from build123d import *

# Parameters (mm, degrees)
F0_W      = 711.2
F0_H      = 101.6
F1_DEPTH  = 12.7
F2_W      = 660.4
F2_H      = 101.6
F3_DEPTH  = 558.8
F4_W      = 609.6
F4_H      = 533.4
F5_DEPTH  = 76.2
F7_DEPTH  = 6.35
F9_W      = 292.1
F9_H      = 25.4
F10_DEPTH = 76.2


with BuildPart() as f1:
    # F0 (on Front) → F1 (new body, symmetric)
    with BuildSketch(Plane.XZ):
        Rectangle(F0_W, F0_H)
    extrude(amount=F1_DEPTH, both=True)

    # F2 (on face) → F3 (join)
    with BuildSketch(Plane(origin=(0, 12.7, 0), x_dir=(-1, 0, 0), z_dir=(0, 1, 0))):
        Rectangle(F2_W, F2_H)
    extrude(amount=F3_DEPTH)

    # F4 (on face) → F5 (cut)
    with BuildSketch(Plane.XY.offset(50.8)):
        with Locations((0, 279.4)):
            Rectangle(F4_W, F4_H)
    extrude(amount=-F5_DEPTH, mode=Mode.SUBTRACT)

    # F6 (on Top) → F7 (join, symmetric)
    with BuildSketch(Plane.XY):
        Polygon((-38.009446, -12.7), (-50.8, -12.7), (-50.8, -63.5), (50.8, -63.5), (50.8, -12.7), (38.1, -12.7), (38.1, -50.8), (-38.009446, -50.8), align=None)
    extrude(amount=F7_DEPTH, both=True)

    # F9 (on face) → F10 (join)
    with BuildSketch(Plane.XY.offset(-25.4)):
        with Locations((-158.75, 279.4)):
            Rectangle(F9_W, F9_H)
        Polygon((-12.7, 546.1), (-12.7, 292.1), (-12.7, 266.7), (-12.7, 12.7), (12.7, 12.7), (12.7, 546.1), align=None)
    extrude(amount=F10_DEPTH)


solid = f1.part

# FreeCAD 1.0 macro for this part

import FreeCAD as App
import Part
import Sketcher

V = App.Vector
Q = App.Units.Quantity

doc = App.newDocument("Part")
body = doc.addObject("PartDesign::Body", "Body")

# Sketch on XZ plane
sketch1 = body.newObject("Sketcher::SketchObject", "Sketch")
sketch1.AttachmentSupport = (doc.getObject("XZ_Plane"), [""])
sketch1.MapMode = "FlatFace"
sketch1.addGeometry([
    Part.LineSegment(V(-356, 51, 0), V(-356, -51, 0)),
    Part.LineSegment(V(-356, -51, 0), V(356, -51, 0)),
    Part.LineSegment(V(356, -51, 0), V(356, 51, 0)),
    Part.LineSegment(V(356, 51, 0), V(-356, 51, 0)),
], False)
sketch1.addConstraint([
    Sketcher.Constraint("Coincident", 0, 2, 1, 1),
    Sketcher.Constraint("Coincident", 1, 2, 2, 1),
    Sketcher.Constraint("Coincident", 2, 2, 3, 1),
    Sketcher.Constraint("Coincident", 3, 2, 0, 1),
    Sketcher.Constraint("Vertical", 0),
    Sketcher.Constraint("Horizontal", 1),
    Sketcher.Constraint("Vertical", 2),
    Sketcher.Constraint("Horizontal", 3),
    Sketcher.Constraint("Symmetric", 0, 2, 2, 2, -1, 1),
    Sketcher.Constraint("DistanceX", 1, 1, 1, 2, Q("28 in")),
    Sketcher.Constraint("DistanceY", 0, 2, 0, 1, Q("4 in")),
])
pad1 = body.newObject("PartDesign::Pad", "Pad")
pad1.Profile = sketch1
pad1.Length = Q("1 in")
pad1.Midplane = True

# Sketch on XZ plane
sketch2 = body.newObject("Sketcher::SketchObject", "Sketch001")
sketch2.AttachmentSupport = (doc.getObject("XZ_Plane"), [""])
sketch2.MapMode = "FlatFace"
sketch2.AttachmentOffset = App.Placement(V(0, 0, -0.5 * 25.4), App.Rotation())
sketch2.addGeometry([
    Part.LineSegment(V(330, 51, 0), V(330, -51, 0)),
    Part.LineSegment(V(330, -51, 0), V(-330, -51, 0)),
    Part.LineSegment(V(-330, -51, 0), V(-330, 51, 0)),
    Part.LineSegment(V(-330, 51, 0), V(330, 51, 0)),
], False)
sketch2.addConstraint([
    Sketcher.Constraint("Coincident", 0, 2, 1, 1),
    Sketcher.Constraint("Coincident", 1, 2, 2, 1),
    Sketcher.Constraint("Coincident", 2, 2, 3, 1),
    Sketcher.Constraint("Coincident", 3, 2, 0, 1),
    Sketcher.Constraint("Vertical", 0),
    Sketcher.Constraint("Horizontal", 1),
    Sketcher.Constraint("Vertical", 2),
    Sketcher.Constraint("Horizontal", 3),
    Sketcher.Constraint("Symmetric", 0, 2, 2, 2, -1, 1),
    Sketcher.Constraint("DistanceX", 1, 2, 1, 1, Q("26 in")),
    Sketcher.Constraint("DistanceY", 0, 2, 0, 1, Q("4 in")),
])
pad2 = body.newObject("PartDesign::Pad", "Pad001")
pad2.Profile = sketch2
pad2.Length = Q("22 in")
pad2.Reversed = True

# Sketch on XY plane
sketch3 = body.newObject("Sketcher::SketchObject", "Sketch002")
sketch3.AttachmentSupport = (doc.getObject("XY_Plane"), [""])
sketch3.MapMode = "FlatFace"
sketch3.AttachmentOffset = App.Placement(V(0, 0, 2 * 25.4), App.Rotation())
sketch3.addGeometry([
    Part.LineSegment(V(-305, 546, 0), V(-305, 13, 0)),
    Part.LineSegment(V(-305, 13, 0), V(305, 13, 0)),
    Part.LineSegment(V(305, 13, 0), V(305, 546, 0)),
    Part.LineSegment(V(305, 546, 0), V(-305, 546, 0)),
], False)
sketch3.addConstraint([
    Sketcher.Constraint("Coincident", 0, 2, 1, 1),
    Sketcher.Constraint("Coincident", 1, 2, 2, 1),
    Sketcher.Constraint("Coincident", 2, 2, 3, 1),
    Sketcher.Constraint("Coincident", 3, 2, 0, 1),
    Sketcher.Constraint("Vertical", 0),
    Sketcher.Constraint("Horizontal", 1),
    Sketcher.Constraint("Vertical", 2),
    Sketcher.Constraint("Horizontal", 3),
    Sketcher.Constraint("DistanceX", 1, 1, 1, 2, Q("24 in")),
    Sketcher.Constraint("DistanceY", 0, 2, 0, 1, Q("21 in")),
    Sketcher.Constraint("DistanceX", 0, 2, -1, 1, Q("12 in")),
    Sketcher.Constraint("DistanceY", -1, 1, 0, 2, Q("0.5 in")),
])
pocket1 = body.newObject("PartDesign::Pocket", "Pocket")
pocket1.Profile = sketch3
pocket1.Length = Q("3 in")

# Sketch on XY plane
sketch4 = body.newObject("Sketcher::SketchObject", "Sketch003")
sketch4.AttachmentSupport = (doc.getObject("XY_Plane"), [""])
sketch4.MapMode = "FlatFace"
sketch4.addGeometry([
    Part.LineSegment(V(-38, -13, 0), V(-51, -13, 0)),  # 0
    Part.LineSegment(V(-51, -13, 0), V(-51, -64, 0)),  # 1
    Part.LineSegment(V(-51, -64, 0), V(51, -64, 0)),  # 2
    Part.LineSegment(V(51, -64, 0), V(51, -13, 0)),  # 3
    Part.LineSegment(V(51, -13, 0), V(38, -13, 0)),  # 4
    Part.LineSegment(V(38, -13, 0), V(38, -51, 0)),  # 5
    Part.LineSegment(V(38, -51, 0), V(-38, -51, 0)),  # 6
    Part.LineSegment(V(-38, -51, 0), V(-38, -13, 0)),  # 7
], False)
sketch4.addConstraint([
    Sketcher.Constraint("Coincident", 0, 2, 1, 1),
    Sketcher.Constraint("Coincident", 1, 2, 2, 1),
    Sketcher.Constraint("Coincident", 2, 2, 3, 1),
    Sketcher.Constraint("Coincident", 3, 2, 4, 1),
    Sketcher.Constraint("Coincident", 4, 2, 5, 1),
    Sketcher.Constraint("Coincident", 5, 2, 6, 1),
    Sketcher.Constraint("Coincident", 6, 2, 7, 1),
    Sketcher.Constraint("Coincident", 7, 2, 0, 1),
    Sketcher.Constraint("Horizontal", 0),
    Sketcher.Constraint("Vertical", 1),
    Sketcher.Constraint("Horizontal", 2),
    Sketcher.Constraint("Vertical", 3),
    Sketcher.Constraint("Horizontal", 4),
    Sketcher.Constraint("Vertical", 5),
    Sketcher.Constraint("Horizontal", 6),
    Sketcher.Constraint("Vertical", 7),
    Sketcher.Constraint("Symmetric", 0, 2, 3, 2, -2),
    Sketcher.Constraint("DistanceX", 2, 1, 2, 2, Q("4 in")),
    Sketcher.Constraint("DistanceY", 1, 2, 1, 1, Q("2 in")),
    Sketcher.Constraint("DistanceX", 4, 2, 4, 1, Q("0.5 in")),
    Sketcher.Constraint("DistanceY", 5, 2, 5, 1, Q("1.5 in")),
    Sketcher.Constraint("DistanceY", 5, 2, -1, 1, Q("2 in")),
    Sketcher.Constraint("DistanceX", 0, 2, 0, 1, Q("12.790554 mm")),
])
pad3 = body.newObject("PartDesign::Pad", "Pad002")
pad3.Profile = sketch4
pad3.Length = Q("0.5 in")
pad3.Midplane = True

# Sketch on XY plane
sketch5 = body.newObject("Sketcher::SketchObject", "Sketch004")
sketch5.AttachmentSupport = (doc.getObject("XY_Plane"), [""])
sketch5.MapMode = "FlatFace"
sketch5.AttachmentOffset = App.Placement(V(0, 0, -1 * 25.4), App.Rotation())
sketch5.addGeometry([
    Part.LineSegment(V(-305, 292, 0), V(-305, 267, 0)),  # 0
    Part.LineSegment(V(-305, 267, 0), V(-13, 267, 0)),  # 1
    Part.LineSegment(V(-13, 267, 0), V(-13, 13, 0)),  # 2
    Part.LineSegment(V(-13, 13, 0), V(13, 13, 0)),  # 3
    Part.LineSegment(V(13, 13, 0), V(13, 546, 0)),  # 4
    Part.LineSegment(V(13, 546, 0), V(-13, 546, 0)),  # 5
    Part.LineSegment(V(-13, 546, 0), V(-13, 292, 0)),  # 6
    Part.LineSegment(V(-13, 292, 0), V(-305, 292, 0)),  # 7
], False)
sketch5.addConstraint([
    Sketcher.Constraint("Coincident", 0, 2, 1, 1),
    Sketcher.Constraint("Coincident", 1, 2, 2, 1),
    Sketcher.Constraint("Coincident", 2, 2, 3, 1),
    Sketcher.Constraint("Coincident", 3, 2, 4, 1),
    Sketcher.Constraint("Coincident", 4, 2, 5, 1),
    Sketcher.Constraint("Coincident", 5, 2, 6, 1),
    Sketcher.Constraint("Coincident", 6, 2, 7, 1),
    Sketcher.Constraint("Coincident", 7, 2, 0, 1),
    Sketcher.Constraint("Vertical", 0),
    Sketcher.Constraint("Horizontal", 1),
    Sketcher.Constraint("Vertical", 2),
    Sketcher.Constraint("Horizontal", 3),
    Sketcher.Constraint("Vertical", 4),
    Sketcher.Constraint("Horizontal", 5),
    Sketcher.Constraint("Vertical", 6),
    Sketcher.Constraint("Horizontal", 7),
    Sketcher.Constraint("Vertical", 2, 2, 5, 2),
    Sketcher.Constraint("Equal", 5, 0),
    Sketcher.Constraint("Equal", 2, 6),
    Sketcher.Constraint("DistanceX", 3, 1, 3, 2, Q("1 in")),
    Sketcher.Constraint("DistanceY", 2, 2, 2, 1, Q("10 in")),
    Sketcher.Constraint("DistanceX", 1, 1, 1, 2, Q("11.5 in")),
    Sketcher.Constraint("DistanceX", 0, 2, -1, 1, Q("12 in")),
    Sketcher.Constraint("DistanceY", -1, 1, 0, 2, Q("10.5 in")),
])
pad4 = body.newObject("PartDesign::Pad", "Pad003")
pad4.Profile = sketch5
pad4.Length = Q("3 in")

doc.recompute()
